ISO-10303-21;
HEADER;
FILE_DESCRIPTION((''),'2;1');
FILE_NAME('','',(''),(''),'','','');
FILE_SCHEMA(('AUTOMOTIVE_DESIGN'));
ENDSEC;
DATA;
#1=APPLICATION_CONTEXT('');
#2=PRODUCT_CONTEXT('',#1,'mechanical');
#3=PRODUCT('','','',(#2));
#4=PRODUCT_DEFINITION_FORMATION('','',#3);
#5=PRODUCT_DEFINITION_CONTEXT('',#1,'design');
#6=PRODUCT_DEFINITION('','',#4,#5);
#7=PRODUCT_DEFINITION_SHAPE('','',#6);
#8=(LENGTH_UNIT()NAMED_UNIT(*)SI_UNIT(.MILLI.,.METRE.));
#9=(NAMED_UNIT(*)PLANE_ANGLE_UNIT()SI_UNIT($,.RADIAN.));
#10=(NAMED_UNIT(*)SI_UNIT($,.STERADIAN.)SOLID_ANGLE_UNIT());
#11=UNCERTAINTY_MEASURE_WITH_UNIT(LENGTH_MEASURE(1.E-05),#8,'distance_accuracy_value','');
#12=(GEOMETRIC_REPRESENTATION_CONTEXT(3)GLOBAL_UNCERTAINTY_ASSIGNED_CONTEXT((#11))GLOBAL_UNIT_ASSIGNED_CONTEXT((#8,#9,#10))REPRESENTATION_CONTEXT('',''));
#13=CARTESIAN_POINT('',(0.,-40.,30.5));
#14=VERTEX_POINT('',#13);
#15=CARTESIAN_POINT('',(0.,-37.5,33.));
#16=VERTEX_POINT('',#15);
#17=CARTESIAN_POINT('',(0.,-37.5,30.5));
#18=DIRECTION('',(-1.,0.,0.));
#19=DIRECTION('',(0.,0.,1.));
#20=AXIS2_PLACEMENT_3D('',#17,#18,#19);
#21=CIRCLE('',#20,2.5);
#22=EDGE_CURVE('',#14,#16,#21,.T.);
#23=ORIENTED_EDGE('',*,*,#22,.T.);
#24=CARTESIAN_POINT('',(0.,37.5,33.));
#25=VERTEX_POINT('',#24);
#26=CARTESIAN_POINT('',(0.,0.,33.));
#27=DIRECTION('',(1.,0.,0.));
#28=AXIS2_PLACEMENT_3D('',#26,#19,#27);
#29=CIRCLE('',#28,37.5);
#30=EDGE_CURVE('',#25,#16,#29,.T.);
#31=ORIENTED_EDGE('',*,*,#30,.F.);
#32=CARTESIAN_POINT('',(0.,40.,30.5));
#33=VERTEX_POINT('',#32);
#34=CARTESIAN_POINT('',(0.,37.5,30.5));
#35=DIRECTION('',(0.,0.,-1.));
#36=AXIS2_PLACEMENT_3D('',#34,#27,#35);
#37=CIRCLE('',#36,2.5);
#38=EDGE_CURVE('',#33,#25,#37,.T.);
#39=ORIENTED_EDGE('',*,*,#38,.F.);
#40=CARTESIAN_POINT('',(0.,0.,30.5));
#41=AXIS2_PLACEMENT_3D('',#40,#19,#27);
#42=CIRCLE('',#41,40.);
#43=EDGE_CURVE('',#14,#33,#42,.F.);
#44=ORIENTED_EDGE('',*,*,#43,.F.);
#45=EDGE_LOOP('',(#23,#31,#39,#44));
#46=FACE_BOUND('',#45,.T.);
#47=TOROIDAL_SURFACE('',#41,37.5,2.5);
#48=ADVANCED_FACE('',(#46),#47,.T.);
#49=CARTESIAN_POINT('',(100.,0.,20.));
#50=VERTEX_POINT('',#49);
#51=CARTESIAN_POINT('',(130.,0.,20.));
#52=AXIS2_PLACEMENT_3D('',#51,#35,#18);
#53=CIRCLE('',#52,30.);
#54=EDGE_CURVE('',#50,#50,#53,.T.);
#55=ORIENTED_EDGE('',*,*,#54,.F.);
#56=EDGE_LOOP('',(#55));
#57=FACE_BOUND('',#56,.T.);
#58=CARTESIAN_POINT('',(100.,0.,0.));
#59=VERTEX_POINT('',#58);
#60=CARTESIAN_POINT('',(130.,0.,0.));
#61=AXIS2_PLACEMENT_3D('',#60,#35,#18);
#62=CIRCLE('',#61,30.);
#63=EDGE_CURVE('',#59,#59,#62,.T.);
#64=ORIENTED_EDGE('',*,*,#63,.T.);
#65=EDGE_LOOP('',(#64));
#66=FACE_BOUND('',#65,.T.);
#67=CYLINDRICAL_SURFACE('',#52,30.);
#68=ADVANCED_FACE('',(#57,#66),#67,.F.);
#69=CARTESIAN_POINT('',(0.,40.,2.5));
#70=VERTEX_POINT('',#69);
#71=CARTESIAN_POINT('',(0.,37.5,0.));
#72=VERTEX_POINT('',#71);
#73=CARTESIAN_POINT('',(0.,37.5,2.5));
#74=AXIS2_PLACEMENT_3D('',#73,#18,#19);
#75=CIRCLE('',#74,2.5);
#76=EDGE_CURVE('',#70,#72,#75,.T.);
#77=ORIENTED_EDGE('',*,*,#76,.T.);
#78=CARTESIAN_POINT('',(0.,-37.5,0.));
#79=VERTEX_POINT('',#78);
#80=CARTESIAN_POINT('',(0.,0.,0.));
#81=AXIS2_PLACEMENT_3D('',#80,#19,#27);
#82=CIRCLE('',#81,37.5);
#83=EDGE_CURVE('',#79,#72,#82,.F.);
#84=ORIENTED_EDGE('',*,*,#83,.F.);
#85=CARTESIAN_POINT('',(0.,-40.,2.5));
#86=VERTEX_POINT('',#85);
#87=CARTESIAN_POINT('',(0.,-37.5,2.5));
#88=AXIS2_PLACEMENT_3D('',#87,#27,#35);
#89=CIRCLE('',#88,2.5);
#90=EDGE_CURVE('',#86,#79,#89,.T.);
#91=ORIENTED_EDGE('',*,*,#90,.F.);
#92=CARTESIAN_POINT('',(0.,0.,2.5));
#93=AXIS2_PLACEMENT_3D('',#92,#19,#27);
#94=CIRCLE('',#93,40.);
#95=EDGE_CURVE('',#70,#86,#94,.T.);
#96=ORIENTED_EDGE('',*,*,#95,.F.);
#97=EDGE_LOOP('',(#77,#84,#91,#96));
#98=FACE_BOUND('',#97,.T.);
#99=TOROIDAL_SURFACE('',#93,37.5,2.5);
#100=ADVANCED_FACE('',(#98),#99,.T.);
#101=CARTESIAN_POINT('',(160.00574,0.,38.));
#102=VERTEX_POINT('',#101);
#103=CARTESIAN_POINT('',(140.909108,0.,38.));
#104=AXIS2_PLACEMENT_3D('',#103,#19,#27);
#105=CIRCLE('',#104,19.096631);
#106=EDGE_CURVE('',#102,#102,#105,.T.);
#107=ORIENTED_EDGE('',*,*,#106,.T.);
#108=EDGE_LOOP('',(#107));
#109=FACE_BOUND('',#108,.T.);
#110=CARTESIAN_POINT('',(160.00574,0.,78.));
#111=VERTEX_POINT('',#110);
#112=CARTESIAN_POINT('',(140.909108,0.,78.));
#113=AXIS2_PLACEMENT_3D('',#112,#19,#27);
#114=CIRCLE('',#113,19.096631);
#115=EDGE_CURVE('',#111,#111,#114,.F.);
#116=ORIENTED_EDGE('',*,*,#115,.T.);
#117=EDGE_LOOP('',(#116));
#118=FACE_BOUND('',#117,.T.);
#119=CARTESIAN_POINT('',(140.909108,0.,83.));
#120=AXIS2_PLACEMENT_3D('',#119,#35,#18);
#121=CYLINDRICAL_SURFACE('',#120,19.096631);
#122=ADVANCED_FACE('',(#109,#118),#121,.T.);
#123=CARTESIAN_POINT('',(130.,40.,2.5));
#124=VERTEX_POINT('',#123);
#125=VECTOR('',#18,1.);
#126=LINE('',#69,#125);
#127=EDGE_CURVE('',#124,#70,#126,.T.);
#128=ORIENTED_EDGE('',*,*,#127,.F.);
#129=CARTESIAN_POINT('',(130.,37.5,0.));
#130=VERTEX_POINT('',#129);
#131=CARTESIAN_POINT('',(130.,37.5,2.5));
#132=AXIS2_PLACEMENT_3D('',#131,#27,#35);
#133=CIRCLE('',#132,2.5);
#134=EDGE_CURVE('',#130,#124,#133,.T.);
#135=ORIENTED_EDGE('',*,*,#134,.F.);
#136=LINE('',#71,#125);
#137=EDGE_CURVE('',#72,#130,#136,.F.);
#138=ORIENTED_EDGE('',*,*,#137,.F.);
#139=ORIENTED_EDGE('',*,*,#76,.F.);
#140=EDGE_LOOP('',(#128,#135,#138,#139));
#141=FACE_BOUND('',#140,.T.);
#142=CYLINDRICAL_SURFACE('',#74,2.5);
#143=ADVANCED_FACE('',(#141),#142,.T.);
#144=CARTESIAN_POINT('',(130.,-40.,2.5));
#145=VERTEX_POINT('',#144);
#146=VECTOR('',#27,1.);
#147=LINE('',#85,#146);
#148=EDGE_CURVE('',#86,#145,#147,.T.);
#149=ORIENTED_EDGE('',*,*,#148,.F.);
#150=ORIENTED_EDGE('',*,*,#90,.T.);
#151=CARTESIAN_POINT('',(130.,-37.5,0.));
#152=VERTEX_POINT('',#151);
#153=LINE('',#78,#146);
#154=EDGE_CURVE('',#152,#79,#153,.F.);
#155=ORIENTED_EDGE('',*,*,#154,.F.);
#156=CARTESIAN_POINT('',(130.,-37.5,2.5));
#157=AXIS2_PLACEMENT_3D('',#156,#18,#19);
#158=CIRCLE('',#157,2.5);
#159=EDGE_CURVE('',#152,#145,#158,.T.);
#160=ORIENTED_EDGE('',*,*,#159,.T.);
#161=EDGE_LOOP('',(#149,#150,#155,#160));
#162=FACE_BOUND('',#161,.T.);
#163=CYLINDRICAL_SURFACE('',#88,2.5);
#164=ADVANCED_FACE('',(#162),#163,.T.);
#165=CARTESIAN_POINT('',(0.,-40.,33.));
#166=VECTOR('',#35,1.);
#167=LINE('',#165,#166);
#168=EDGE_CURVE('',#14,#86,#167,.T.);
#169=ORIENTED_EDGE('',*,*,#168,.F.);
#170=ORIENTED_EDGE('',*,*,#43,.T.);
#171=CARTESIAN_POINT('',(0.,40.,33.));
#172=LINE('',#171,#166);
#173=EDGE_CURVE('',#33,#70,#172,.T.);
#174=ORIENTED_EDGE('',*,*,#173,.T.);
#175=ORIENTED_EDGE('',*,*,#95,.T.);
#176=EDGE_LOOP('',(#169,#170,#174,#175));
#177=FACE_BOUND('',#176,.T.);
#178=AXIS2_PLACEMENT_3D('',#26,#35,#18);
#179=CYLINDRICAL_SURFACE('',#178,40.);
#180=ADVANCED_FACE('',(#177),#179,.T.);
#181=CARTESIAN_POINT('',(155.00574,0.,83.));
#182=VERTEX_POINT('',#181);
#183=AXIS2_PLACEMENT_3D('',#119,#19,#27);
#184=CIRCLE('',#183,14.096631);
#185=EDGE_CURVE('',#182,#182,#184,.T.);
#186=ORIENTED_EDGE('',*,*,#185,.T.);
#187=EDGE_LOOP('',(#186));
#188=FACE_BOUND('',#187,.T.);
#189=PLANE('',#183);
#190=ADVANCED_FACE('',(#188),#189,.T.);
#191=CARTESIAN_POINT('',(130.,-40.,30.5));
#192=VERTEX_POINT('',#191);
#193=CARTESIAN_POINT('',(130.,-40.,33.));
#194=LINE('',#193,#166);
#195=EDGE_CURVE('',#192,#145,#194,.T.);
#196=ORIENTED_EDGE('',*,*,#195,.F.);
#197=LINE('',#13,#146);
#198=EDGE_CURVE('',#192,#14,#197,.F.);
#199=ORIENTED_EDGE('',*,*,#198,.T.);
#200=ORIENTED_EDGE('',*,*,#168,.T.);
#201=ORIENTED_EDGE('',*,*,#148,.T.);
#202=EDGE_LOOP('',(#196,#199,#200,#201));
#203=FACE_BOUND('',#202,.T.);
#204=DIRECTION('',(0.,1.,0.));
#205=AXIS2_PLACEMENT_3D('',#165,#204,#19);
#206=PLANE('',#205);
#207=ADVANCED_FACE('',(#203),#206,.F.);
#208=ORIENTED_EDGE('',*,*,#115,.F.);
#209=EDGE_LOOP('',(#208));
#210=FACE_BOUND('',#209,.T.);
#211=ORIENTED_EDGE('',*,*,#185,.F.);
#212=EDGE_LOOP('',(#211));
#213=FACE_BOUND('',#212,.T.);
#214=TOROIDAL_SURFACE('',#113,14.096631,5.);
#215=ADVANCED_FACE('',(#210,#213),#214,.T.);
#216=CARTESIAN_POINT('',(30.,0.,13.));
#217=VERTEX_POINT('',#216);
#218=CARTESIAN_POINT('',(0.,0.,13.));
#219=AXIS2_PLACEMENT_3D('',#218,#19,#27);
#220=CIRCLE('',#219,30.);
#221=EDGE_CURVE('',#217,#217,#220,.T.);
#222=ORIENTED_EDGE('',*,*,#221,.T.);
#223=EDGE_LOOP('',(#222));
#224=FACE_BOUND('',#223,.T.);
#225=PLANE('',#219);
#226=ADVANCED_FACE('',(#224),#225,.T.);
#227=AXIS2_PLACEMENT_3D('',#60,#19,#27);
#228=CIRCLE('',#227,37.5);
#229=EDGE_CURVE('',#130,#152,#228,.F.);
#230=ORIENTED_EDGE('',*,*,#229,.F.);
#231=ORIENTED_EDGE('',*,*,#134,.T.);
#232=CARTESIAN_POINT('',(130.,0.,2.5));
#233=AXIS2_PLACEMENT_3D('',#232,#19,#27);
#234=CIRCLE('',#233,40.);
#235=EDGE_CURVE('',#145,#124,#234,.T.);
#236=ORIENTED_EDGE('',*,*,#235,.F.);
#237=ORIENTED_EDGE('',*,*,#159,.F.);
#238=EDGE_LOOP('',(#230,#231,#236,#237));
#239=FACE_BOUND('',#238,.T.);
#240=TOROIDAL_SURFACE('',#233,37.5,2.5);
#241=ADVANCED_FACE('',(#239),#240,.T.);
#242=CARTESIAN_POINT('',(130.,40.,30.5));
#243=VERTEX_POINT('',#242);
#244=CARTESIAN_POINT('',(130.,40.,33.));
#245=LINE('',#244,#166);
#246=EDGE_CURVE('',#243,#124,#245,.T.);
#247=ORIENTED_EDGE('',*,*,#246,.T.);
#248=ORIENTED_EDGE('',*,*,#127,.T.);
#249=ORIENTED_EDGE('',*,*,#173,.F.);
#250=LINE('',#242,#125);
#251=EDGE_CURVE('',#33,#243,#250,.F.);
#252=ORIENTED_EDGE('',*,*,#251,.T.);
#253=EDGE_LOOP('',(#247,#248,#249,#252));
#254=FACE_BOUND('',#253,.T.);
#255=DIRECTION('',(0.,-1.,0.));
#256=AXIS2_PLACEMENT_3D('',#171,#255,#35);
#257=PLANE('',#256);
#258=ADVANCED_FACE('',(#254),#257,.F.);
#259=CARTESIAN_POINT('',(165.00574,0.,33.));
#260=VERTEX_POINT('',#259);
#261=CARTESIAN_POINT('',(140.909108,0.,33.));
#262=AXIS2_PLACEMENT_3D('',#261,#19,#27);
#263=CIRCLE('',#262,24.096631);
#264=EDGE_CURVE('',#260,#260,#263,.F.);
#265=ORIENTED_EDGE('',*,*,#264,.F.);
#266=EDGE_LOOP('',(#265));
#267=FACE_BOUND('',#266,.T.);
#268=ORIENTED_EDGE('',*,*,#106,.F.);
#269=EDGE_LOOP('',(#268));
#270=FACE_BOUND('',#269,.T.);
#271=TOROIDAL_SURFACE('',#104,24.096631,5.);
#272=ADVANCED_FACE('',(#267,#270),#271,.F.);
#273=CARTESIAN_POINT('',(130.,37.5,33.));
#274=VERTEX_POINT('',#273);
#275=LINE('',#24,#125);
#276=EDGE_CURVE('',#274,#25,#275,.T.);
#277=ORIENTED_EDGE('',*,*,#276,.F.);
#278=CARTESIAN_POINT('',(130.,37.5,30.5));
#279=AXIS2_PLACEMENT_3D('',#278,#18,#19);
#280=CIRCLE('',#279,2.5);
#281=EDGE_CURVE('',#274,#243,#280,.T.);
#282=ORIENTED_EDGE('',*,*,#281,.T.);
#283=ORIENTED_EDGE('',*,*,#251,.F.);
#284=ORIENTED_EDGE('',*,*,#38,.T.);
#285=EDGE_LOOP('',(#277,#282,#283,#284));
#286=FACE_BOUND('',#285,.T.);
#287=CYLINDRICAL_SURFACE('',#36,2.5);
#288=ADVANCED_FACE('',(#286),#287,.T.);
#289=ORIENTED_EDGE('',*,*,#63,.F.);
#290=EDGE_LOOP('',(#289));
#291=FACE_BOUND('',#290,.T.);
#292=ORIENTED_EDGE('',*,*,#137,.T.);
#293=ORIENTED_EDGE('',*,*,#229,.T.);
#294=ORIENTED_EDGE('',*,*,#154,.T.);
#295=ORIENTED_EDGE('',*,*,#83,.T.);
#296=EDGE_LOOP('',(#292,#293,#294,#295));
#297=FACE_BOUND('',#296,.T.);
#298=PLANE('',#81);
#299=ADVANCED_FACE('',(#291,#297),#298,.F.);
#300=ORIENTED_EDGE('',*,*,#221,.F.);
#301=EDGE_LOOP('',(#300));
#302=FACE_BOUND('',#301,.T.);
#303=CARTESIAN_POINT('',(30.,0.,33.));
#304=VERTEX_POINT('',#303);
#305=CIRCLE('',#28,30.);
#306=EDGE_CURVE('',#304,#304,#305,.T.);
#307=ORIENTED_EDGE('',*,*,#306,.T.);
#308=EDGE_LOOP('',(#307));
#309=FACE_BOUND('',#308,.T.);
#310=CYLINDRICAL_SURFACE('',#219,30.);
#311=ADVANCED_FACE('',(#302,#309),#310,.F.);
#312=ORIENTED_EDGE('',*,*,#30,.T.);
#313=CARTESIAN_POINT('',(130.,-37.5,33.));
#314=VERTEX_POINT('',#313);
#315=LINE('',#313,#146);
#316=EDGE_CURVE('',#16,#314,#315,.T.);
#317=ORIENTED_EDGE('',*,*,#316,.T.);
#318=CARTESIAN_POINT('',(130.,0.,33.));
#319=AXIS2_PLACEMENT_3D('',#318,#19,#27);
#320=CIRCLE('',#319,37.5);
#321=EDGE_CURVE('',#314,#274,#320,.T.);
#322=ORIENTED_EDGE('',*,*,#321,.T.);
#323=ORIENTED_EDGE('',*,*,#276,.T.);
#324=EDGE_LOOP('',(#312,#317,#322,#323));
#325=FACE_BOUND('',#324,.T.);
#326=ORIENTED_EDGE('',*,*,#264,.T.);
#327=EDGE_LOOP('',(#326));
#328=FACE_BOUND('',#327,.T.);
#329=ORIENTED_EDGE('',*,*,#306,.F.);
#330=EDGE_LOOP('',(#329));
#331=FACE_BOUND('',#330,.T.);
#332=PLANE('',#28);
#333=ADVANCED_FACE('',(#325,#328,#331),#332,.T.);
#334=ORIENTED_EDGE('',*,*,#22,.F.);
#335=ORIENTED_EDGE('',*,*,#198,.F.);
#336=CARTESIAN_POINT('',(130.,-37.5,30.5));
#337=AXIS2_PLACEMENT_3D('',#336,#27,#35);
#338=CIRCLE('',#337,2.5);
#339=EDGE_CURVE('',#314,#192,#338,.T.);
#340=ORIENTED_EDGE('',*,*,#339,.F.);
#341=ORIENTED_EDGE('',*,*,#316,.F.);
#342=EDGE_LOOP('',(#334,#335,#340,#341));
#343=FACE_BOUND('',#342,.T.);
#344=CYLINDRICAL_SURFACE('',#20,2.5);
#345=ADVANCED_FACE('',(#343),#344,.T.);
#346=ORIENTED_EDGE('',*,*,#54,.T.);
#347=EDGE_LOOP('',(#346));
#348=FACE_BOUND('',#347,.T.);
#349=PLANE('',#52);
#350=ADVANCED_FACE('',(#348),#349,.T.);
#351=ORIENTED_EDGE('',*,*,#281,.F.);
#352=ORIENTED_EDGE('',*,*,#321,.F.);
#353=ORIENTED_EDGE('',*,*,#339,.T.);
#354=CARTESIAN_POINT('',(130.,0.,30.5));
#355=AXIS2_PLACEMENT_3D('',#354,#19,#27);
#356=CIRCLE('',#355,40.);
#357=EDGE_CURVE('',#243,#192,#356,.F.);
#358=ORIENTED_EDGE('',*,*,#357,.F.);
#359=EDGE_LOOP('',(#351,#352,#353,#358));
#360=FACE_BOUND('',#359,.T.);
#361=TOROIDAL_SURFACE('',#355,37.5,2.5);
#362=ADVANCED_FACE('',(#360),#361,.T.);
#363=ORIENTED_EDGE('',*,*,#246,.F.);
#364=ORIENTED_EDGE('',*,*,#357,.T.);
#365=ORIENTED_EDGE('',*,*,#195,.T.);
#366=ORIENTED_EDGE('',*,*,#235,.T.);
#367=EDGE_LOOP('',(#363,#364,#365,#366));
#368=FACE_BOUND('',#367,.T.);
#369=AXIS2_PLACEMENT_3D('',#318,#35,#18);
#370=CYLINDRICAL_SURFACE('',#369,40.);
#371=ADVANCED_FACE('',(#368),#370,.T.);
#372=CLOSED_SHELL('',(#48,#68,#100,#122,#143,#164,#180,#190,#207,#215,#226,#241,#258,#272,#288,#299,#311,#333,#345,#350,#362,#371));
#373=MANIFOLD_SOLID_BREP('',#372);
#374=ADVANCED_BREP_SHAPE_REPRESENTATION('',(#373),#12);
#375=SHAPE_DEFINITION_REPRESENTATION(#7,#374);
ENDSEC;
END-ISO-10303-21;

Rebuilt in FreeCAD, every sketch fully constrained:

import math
import FreeCAD as App
import Part
import Sketcher
from FreeCAD import Vector


def edges_at(feature, points):
    """Names of the edges that pass closest to the given points."""
    edges = feature.Shape.Edges
    near = lambda p: min(range(len(edges)), key=lambda i: edges[i].distToShape(Part.Vertex(*p))[0])
    return sorted({f"Edge{near(p) + 1}" for p in points})

doc = App.newDocument("Part")
body = doc.addObject("PartDesign::Body", "Body")

# Sketch on XY plane
sketch1 = body.newObject("Sketcher::SketchObject", "Sketch")
sketch1.AttachmentSupport = (doc.getObject("XY_Plane"), [""])
sketch1.MapMode = "FlatFace"
sketch1.addGeometry(Part.LineSegment(Vector(130, 40, 0), Vector(0, 40, 0)), False)
sketch1.addGeometry(Part.ArcOfCircle(Part.Circle(Vector(0, 0, 0), Vector(0, 0, 1), 40), math.radians(90), math.radians(270)), False)
sketch1.addGeometry(Part.LineSegment(Vector(0, -40, 0), Vector(130, -40, 0)), False)
sketch1.addGeometry(Part.ArcOfCircle(Part.Circle(Vector(130, 0, 0), Vector(0, 0, 1), 40), math.radians(-90), math.radians(90)), False)
sketch1.addConstraint(Sketcher.Constraint("Tangent", 0, 2, 1, 1))
sketch1.addConstraint(Sketcher.Constraint("Tangent", 1, 2, 2, 1))
sketch1.addConstraint(Sketcher.Constraint("Tangent", 2, 2, 3, 1))
sketch1.addConstraint(Sketcher.Constraint("Tangent", 3, 2, 0, 1))
sketch1.addConstraint(Sketcher.Constraint("Horizontal", 0))
sketch1.addConstraint(Sketcher.Constraint("Horizontal", 2))
sketch1.addConstraint(Sketcher.Constraint("Coincident", 1, 3, -1, 1))
sketch1.addConstraint(Sketcher.Constraint("Radius", 1, 40.0))
sketch1.addConstraint(Sketcher.Constraint("DistanceX", 0, 2, 0, 1, 130.0))
pad1 = body.newObject("PartDesign::Pad", "Pad")
pad1.Profile = sketch1
pad1.Length = 33
doc.recompute()

fillet = body.newObject("PartDesign::Fillet", "Fillet")
fillet.Base = (pad1, edges_at(pad1, [
    (170, 0, 33),
    (65, 40, 33),
    (-40, 0, 33),
    (65, 40, 0),
    (170, 0, 0),
    (65, -40, 0),
    (-40, 0, 0),
    (65, -40, 33),
]))
fillet.Radius = 2.5

# Sketch on XY plane
sketch2 = body.newObject("Sketcher::SketchObject", "Sketch001")
sketch2.AttachmentSupport = (doc.getObject("XY_Plane"), [""])
sketch2.MapMode = "FlatFace"
sketch2.AttachmentOffset = App.Placement(Vector(0, 0, 33), App.Rotation())
sketch2.addGeometry(Part.Circle(Vector(0, 0, 0), Vector(0, 0, 1), 30), False)
sketch2.addConstraint(Sketcher.Constraint("Coincident", 0, 3, -1, 1))
sketch2.addConstraint(Sketcher.Constraint("Diameter", 0, 60.0))
pocket1 = body.newObject("PartDesign::Pocket", "Pocket")
pocket1.Profile = sketch2
pocket1.Length = 20

# Sketch on XY plane
sketch3 = body.newObject("Sketcher::SketchObject", "Sketch002")
sketch3.AttachmentSupport = (doc.getObject("XY_Plane"), [""])
sketch3.MapMode = "FlatFace"
sketch3.addGeometry(Part.Circle(Vector(130, 0, 0), Vector(0, 0, 1), 30), False)
sketch3.addConstraint(Sketcher.Constraint("PointOnObject", 0, 3, -1))
sketch3.addConstraint(Sketcher.Constraint("Diameter", 0, 60.0))
sketch3.addConstraint(Sketcher.Constraint("DistanceX", -1, 1, 0, 3, 130.0))
pocket2 = body.newObject("PartDesign::Pocket", "Pocket001")
pocket2.Profile = sketch3
pocket2.Length = 20
pocket2.Reversed = True

# Sketch on XY plane
sketch4 = body.newObject("Sketcher::SketchObject", "Sketch003")
sketch4.AttachmentSupport = (doc.getObject("XY_Plane"), [""])
sketch4.MapMode = "FlatFace"
sketch4.AttachmentOffset = App.Placement(Vector(0, 0, 33), App.Rotation())
sketch4.addGeometry(Part.Circle(Vector(141, 0, 0), Vector(0, 0, 1), 19), False)
sketch4.addConstraint(Sketcher.Constraint("PointOnObject", 0, 3, -1))
sketch4.addConstraint(Sketcher.Constraint("Diameter", 0, 38.193262))
sketch4.addConstraint(Sketcher.Constraint("DistanceX", -1, 1, 0, 3, 140.909108))
pad2 = body.newObject("PartDesign::Pad", "Pad001")
pad2.Profile = sketch4
pad2.Length = 50
doc.recompute()

fillet2 = body.newObject("PartDesign::Fillet", "Fillet001")
fillet2.Base = (pad2, edges_at(pad2, [(121.812, 0, 33), (121.812, 0, 83)]))
fillet2.Radius = 5

doc.recompute()
